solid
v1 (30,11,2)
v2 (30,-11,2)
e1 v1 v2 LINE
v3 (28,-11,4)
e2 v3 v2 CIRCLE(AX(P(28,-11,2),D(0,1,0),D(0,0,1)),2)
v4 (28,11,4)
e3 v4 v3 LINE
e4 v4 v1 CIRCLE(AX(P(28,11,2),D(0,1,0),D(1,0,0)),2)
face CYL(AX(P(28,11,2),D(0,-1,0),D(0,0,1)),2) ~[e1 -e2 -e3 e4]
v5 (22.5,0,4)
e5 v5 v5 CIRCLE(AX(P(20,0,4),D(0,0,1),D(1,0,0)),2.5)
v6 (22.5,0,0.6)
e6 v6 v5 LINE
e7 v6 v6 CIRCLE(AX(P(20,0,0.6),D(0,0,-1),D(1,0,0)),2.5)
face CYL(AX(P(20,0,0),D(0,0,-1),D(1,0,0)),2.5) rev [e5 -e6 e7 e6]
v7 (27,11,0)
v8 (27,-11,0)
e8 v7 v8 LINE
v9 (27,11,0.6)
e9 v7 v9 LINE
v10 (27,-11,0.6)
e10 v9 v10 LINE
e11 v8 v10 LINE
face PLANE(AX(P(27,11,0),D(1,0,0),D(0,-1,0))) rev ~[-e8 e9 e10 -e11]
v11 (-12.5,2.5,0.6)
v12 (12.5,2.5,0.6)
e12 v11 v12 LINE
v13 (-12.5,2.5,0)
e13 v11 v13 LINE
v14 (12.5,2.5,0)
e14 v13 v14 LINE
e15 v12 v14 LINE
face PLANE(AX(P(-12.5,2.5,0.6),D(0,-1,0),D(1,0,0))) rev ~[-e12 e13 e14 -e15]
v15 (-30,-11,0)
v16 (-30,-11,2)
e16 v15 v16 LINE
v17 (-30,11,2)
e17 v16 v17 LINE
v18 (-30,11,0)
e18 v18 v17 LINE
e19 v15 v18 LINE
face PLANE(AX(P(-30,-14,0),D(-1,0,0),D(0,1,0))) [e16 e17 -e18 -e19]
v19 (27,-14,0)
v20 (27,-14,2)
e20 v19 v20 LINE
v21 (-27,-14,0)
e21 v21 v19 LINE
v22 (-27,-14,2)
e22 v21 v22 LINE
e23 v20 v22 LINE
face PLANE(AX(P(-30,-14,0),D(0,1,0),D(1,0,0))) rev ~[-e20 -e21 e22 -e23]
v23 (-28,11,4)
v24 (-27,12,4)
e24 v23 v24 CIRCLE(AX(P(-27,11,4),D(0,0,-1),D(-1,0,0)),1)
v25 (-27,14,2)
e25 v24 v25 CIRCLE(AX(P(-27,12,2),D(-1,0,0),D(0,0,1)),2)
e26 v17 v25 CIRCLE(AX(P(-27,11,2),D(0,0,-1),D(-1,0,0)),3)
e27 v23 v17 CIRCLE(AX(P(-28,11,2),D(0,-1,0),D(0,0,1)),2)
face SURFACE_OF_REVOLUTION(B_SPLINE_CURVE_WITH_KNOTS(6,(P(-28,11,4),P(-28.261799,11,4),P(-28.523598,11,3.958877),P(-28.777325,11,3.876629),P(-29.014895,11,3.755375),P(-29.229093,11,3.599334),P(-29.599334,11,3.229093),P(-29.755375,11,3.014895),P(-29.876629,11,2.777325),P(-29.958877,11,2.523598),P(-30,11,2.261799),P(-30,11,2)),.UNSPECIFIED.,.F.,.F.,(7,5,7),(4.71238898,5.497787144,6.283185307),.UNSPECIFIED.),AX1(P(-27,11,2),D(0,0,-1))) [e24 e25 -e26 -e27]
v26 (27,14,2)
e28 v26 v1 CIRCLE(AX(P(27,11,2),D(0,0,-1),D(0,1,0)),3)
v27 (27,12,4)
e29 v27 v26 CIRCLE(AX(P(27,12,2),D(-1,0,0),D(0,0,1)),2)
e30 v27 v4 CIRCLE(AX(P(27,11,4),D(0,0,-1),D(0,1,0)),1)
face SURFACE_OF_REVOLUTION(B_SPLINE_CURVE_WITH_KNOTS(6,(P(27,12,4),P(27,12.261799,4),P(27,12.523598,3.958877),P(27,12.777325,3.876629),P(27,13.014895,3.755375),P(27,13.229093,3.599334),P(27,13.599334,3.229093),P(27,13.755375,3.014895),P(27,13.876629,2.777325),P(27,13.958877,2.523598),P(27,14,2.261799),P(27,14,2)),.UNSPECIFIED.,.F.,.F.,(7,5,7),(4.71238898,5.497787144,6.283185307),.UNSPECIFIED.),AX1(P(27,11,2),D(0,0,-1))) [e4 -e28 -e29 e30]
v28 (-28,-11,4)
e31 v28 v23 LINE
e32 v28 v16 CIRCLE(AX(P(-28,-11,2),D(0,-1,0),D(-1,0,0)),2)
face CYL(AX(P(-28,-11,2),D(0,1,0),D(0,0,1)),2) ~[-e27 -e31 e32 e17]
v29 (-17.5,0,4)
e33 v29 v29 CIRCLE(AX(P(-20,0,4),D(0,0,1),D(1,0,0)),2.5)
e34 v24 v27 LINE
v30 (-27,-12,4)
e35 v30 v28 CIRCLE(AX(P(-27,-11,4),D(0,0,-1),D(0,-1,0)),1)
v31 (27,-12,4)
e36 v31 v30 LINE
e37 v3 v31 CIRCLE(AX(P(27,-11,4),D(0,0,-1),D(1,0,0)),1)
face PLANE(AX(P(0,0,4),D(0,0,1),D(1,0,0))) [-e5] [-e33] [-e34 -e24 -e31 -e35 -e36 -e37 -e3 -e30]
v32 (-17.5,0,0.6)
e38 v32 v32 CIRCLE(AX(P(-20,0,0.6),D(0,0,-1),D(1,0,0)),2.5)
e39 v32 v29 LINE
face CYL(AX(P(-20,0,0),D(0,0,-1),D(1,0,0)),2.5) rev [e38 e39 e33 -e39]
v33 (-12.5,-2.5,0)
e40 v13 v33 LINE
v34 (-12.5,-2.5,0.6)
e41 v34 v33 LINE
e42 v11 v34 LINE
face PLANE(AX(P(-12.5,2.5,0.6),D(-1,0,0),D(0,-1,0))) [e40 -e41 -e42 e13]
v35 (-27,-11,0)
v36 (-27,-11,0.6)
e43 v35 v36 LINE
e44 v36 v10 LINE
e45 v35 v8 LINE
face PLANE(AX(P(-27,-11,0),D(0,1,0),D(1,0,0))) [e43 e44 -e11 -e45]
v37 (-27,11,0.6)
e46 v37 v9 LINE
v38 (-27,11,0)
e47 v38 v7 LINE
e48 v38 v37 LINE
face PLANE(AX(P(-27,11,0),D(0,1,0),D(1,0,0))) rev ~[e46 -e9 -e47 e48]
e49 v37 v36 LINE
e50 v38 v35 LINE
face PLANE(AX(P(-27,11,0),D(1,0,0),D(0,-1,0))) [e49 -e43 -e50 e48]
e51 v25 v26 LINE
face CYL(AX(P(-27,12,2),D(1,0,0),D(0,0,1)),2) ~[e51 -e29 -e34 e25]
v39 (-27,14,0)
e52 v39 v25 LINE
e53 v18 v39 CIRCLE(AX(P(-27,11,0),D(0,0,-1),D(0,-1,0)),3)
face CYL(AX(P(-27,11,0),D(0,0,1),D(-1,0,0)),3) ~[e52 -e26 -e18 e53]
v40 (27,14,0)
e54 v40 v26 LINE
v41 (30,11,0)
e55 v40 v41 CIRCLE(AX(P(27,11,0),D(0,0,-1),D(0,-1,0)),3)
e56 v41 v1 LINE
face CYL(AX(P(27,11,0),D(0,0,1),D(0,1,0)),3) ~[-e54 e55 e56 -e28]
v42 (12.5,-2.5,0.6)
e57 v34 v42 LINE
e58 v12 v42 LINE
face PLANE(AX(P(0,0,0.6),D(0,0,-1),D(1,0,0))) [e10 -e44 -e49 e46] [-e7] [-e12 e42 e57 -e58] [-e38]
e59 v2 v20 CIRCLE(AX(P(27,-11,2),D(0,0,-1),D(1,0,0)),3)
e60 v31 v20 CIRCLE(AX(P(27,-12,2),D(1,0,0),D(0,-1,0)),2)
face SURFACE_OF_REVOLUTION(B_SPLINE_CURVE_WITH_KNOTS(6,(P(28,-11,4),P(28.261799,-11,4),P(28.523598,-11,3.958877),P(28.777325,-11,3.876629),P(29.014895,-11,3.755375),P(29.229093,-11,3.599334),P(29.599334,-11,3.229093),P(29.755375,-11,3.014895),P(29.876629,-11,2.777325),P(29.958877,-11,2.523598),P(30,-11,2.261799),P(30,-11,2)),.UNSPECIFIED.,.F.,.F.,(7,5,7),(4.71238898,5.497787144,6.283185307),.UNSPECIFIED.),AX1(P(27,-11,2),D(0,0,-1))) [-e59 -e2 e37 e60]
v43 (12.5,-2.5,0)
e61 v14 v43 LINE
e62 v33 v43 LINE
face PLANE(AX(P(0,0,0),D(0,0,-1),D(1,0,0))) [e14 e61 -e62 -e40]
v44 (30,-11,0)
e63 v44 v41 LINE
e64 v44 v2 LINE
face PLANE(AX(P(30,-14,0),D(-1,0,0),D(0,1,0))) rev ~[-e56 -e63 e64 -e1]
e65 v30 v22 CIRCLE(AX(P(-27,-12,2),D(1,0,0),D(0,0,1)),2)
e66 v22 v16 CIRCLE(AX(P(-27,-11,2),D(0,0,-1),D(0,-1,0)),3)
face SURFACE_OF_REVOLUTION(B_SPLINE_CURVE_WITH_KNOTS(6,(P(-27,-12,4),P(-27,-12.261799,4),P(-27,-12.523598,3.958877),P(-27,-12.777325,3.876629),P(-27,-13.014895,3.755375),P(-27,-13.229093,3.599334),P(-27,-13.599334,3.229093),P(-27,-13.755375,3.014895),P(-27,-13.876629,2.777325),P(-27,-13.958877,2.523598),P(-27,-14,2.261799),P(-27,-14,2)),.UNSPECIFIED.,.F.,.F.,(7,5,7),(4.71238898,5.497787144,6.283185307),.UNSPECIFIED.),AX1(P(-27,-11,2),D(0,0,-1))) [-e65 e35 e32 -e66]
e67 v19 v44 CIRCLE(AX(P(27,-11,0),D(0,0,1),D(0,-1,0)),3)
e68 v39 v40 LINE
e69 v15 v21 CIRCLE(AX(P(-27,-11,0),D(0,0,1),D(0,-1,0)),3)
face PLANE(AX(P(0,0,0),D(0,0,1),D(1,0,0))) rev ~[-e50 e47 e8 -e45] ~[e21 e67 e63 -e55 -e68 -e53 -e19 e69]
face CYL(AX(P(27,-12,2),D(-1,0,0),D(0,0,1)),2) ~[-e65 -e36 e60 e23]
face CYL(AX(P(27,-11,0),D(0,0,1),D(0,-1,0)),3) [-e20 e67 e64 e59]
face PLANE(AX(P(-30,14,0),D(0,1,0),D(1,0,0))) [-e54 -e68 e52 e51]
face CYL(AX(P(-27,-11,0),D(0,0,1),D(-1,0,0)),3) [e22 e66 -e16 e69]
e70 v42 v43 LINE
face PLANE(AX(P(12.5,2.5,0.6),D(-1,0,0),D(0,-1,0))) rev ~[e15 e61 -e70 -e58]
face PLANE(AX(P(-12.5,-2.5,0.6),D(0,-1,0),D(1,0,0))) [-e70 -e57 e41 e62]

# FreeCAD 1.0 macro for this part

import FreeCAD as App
import Part
import Sketcher
Q = App.Units.Quantity


def edges_at(feature, points):
    """Names of the edges that pass closest to the given points."""
    edges = feature.Shape.Edges
    near = lambda p: min(range(len(edges)), key=lambda i: edges[i].distToShape(Part.Vertex(*p))[0])
    return sorted({f"Edge{near(p) + 1}" for p in points})


def add_polygon(sketch, points):
    """Adds a closed chain of lines whose ends are joined by coincident constraints."""
    first, n = sketch.GeometryCount, len(points)
    for a, b in zip(points, points[1:] + points[:1]):
        sketch.addGeometry(Part.LineSegment(App.Vector(*a, 0), App.Vector(*b, 0)), False)
    for i in range(n):
        sketch.addConstraint(Sketcher.Constraint("Coincident", first + i, 2, first + (i + 1) % n, 1))

doc = App.newDocument("Part")
body = doc.addObject("PartDesign::Body", "Body")

# Sketch on XY plane
sketch1 = body.newObject("Sketcher::SketchObject", "Sketch")
sketch1.AttachmentSupport = (doc.getObject("XY_Plane"), [""])
sketch1.MapMode = "FlatFace"
add_polygon(sketch1, [(-30, 14), (-30, -14), (30, -14), (30, 14)])  # lines 0-3
sketch1.addGeometry(Part.Circle(App.Vector(-20, 0, 0), App.Vector(0, 0, 1), 2.5), False)  # 4
sketch1.addGeometry(Part.Circle(App.Vector(20, 0, 0), App.Vector(0, 0, 1), 2.5), False)  # 5
sketch1.addConstraint([
    Sketcher.Constraint("Vertical", 0),
    Sketcher.Constraint("Horizontal", 1),
    Sketcher.Constraint("Vertical", 2),
    Sketcher.Constraint("Horizontal", 3),
    Sketcher.Constraint("Equal", 4, 5),
    Sketcher.Constraint("Symmetric", 4, 3, 5, 3, -1, 1),
    Sketcher.Constraint("Symmetric", 0, 2, 2, 2, -1, 1),
    Sketcher.Constraint("PointOnObject", 4, 3, -1),
    Sketcher.Constraint("Diameter", 4, Q("5 mm")),
    Sketcher.Constraint("DistanceX", 1, 1, 1, 2, Q("60 mm")),
    Sketcher.Constraint("DistanceY", 0, 2, 0, 1, Q("28 mm")),
    Sketcher.Constraint("DistanceX", 4, 3, -1, 1, Q("20 mm")),
])
pad1 = body.newObject("PartDesign::Pad", "Pad")
pad1.Profile = sketch1
pad1.Length = 4

# Sketch on XY plane
sketch2 = body.newObject("Sketcher::SketchObject", "Sketch001")
sketch2.AttachmentSupport = (doc.getObject("XY_Plane"), [""])
sketch2.MapMode = "FlatFace"
add_polygon(sketch2, [(-27, -11), (-27, 11), (27, 11), (27, -11)])  # lines 0-3
sketch2.addConstraint([
    Sketcher.Constraint("Vertical", 0),
    Sketcher.Constraint("Horizontal", 1),
    Sketcher.Constraint("Vertical", 2),
    Sketcher.Constraint("Horizontal", 3),
    Sketcher.Constraint("Symmetric", 0, 2, 2, 2, -1, 1),
    Sketcher.Constraint("DistanceX", 1, 1, 1, 2, Q("54 mm")),
    Sketcher.Constraint("DistanceY", 0, 1, 0, 2, Q("22 mm")),
])
pocket1 = body.newObject("PartDesign::Pocket", "Pocket")
pocket1.Profile = sketch2
pocket1.Length = 0.6
pocket1.Reversed = True
doc.recompute()

fillet = body.newObject("PartDesign::Fillet", "Fillet")
fillet.Base = (pocket1, edges_at(pocket1, [
    (-30, 14, 2),
    (-30, -14, 2),
    (30, -14, 2),
    (30, 14, 2),
]))
fillet.Radius = 3
doc.recompute()

fillet2 = body.newObject("PartDesign::Fillet", "Fillet001")
fillet2.Base = (fillet, edges_at(fillet, [(0, 14, 4)]))
fillet2.Radius = 2

# Sketch on XY plane
sketch3 = body.newObject("Sketcher::SketchObject", "Sketch002")
sketch3.AttachmentSupport = (doc.getObject("XY_Plane"), [""])
sketch3.MapMode = "FlatFace"
sketch3.AttachmentOffset = App.Placement(App.Vector(0, 0, 0.6), App.Rotation())
add_polygon(sketch3, [(-12.5, -2.5), (-12.5, 2.5), (12.5, 2.5), (12.5, -2.5)])  # lines 0-3
sketch3.addConstraint([
    Sketcher.Constraint("Vertical", 0),
    Sketcher.Constraint("Horizontal", 1),
    Sketcher.Constraint("Vertical", 2),
    Sketcher.Constraint("Horizontal", 3),
    Sketcher.Constraint("Symmetric", 0, 2, 2, 2, -1, 1),
    Sketcher.Constraint("DistanceX", 1, 1, 1, 2, Q("25 mm")),
    Sketcher.Constraint("DistanceY", 0, 1, 0, 2, Q("5 mm")),
])
pad2 = body.newObject("PartDesign::Pad", "Pad001")
pad2.Profile = sketch3
pad2.Length = 0.6
pad2.Reversed = True

doc.recompute()
